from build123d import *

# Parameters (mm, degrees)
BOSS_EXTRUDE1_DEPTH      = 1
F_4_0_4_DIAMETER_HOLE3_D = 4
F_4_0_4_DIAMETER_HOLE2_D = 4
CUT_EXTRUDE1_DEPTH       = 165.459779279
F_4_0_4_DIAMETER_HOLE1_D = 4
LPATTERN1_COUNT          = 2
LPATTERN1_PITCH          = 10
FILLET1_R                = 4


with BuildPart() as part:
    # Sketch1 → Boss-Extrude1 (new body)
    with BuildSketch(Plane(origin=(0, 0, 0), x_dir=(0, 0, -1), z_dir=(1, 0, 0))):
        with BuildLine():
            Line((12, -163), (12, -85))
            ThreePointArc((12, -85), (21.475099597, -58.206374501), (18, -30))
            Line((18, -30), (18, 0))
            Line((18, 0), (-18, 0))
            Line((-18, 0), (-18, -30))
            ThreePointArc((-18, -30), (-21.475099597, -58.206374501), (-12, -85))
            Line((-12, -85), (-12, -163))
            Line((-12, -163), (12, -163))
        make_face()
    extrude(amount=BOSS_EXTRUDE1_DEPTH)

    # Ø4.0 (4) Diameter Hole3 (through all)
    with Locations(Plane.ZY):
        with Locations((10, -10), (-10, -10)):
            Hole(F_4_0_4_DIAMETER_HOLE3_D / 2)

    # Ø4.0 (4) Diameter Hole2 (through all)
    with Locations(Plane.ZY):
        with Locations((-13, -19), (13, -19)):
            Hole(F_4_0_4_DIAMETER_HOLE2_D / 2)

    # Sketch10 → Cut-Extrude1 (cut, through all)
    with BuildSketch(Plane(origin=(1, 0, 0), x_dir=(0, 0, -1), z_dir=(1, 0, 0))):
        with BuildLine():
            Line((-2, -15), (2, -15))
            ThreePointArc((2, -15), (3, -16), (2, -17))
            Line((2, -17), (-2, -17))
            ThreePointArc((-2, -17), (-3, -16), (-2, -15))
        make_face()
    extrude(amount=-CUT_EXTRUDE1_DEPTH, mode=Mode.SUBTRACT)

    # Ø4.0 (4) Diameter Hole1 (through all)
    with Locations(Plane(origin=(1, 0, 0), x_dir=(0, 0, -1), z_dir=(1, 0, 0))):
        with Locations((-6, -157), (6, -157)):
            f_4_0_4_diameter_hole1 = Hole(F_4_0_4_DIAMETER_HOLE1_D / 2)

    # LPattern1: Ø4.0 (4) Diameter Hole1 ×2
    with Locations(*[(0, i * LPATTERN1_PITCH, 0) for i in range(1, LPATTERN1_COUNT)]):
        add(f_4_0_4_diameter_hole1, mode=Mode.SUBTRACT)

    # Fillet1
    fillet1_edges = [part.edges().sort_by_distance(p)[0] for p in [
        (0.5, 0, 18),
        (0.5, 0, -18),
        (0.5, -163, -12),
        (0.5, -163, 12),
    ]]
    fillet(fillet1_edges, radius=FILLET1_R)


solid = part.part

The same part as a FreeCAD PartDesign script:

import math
import FreeCAD as App
import Part
import Sketcher

V = App.Vector


def edges_at(feature, points):
    """Names of the edges that pass closest to the given points."""
    edges = feature.Shape.Edges
    near = lambda p: min(range(len(edges)), key=lambda i: edges[i].distToShape(Part.Vertex(*p))[0])
    return sorted({f"Edge{near(p) + 1}" for p in points})

doc = App.newDocument("Part")
params = doc.addObject("Spreadsheet::Sheet", "Params")
for row, (alias, value) in enumerate([
    ("sketch1_radius", "62 mm"),
    ("sketch1_width", "78 mm"),
    ("sketch1_width2", "30 mm"),
    ("sketch1_height", "36 mm"),
    ("sketch1_height2", "24 mm"),
    ("pad1_length", "1 mm"),
    ("sketch2_diameter", "4 mm"),
    ("hole_diameter", "4 mm"),
    ("sketch3_diameter", "4 mm"),
    ("hole2_diameter", "4 mm"),
    ("sketch4_radius", "1 mm"),
    ("sketch4_height", "4 mm"),
    ("sketch5_diameter", "4 mm"),
    ("hole3_diameter", "4 mm"),
    ("linearpattern_pitch", "10 mm"),
    ("fillet_radius", "4 mm"),
], start=1):
    params.set(f"A{row}", alias)
    params.set(f"B{row}", "=" + value)
    params.setAlias(f"B{row}", alias)

body = doc.addObject("PartDesign::Body", "Body")

# Sketch on YZ plane
sketch1 = body.newObject("Sketcher::SketchObject", "Sketch")
sketch1.AttachmentSupport = (doc.getObject("YZ_Plane"), [""])
sketch1.MapMode = "FlatFace"
sketch1.addGeometry(Part.LineSegment(V(-163, -12, 0), V(-85, -12, 0)), False)
sketch1.addGeometry(Part.ArcOfCircle(Part.Circle(V(-51.482629, 40.159235, 0), V(0, 0, 1), 62), math.radians(-122.724681), math.radians(-69.726977)), False)
sketch1.addGeometry(Part.LineSegment(V(-30, -18, 0), V(0, -18, 0)), False)
sketch1.addGeometry(Part.LineSegment(V(0, -18, 0), V(0, 18, 0)), False)
sketch1.addGeometry(Part.LineSegment(V(0, 18, 0), V(-30, 18, 0)), False)
sketch1.addGeometry(Part.ArcOfCircle(Part.Circle(V(-51.482629, -40.159235, 0), V(0, 0, 1), 62), math.radians(69.726977), math.radians(122.724681)), False)
sketch1.addGeometry(Part.LineSegment(V(-85, 12, 0), V(-163, 12, 0)), False)
sketch1.addGeometry(Part.LineSegment(V(-163, 12, 0), V(-163, -12, 0)), False)
sketch1.addConstraint(Sketcher.Constraint("Coincident", 0, 2, 1, 1))
sketch1.addConstraint(Sketcher.Constraint("Coincident", 1, 2, 2, 1))
sketch1.addConstraint(Sketcher.Constraint("Coincident", 2, 2, 3, 1))
sketch1.addConstraint(Sketcher.Constraint("Coincident", 3, 2, 4, 1))
sketch1.addConstraint(Sketcher.Constraint("Coincident", 4, 2, 5, 1))
sketch1.addConstraint(Sketcher.Constraint("Coincident", 5, 2, 6, 1))
sketch1.addConstraint(Sketcher.Constraint("Coincident", 6, 2, 7, 1))
sketch1.addConstraint(Sketcher.Constraint("Coincident", 7, 2, 0, 1))
sketch1.addConstraint(Sketcher.Constraint("Horizontal", 0))
sketch1.addConstraint(Sketcher.Constraint("Horizontal", 2))
sketch1.addConstraint(Sketcher.Constraint("Vertical", 3))
sketch1.addConstraint(Sketcher.Constraint("Horizontal", 4))
sketch1.addConstraint(Sketcher.Constraint("Horizontal", 6))
sketch1.addConstraint(Sketcher.Constraint("Vertical", 7))
sketch1.addConstraint(Sketcher.Constraint("Equal", 1, 5))
sketch1.addConstraint(Sketcher.Constraint("Symmetric", 2, 2, 3, 2, -1, 1))
sketch1.addConstraint(Sketcher.Constraint("Symmetric", 1, 3, 5, 3, -1))
sketch1.addConstraint(Sketcher.Constraint("Vertical", 0, 2, 5, 2))
sketch1.addConstraint(Sketcher.Constraint("Radius", 1, 62.0))
sketch1.addConstraint(Sketcher.Constraint("DistanceX", 0, 1, 0, 2, 78.0))
sketch1.addConstraint(Sketcher.Constraint("DistanceX", 2, 1, 2, 2, 30.0))
sketch1.addConstraint(Sketcher.Constraint("DistanceY", 3, 1, 3, 2, 36.0))
sketch1.addConstraint(Sketcher.Constraint("DistanceY", 7, 2, 7, 1, 24.0))
sketch1.addConstraint(Sketcher.Constraint("DistanceX", 0, 2, -1, 1, 85.0))
sketch1.setExpression("Constraints[18]", "Params.sketch1_radius")
sketch1.setExpression("Constraints[19]", "Params.sketch1_width")
sketch1.setExpression("Constraints[20]", "Params.sketch1_width2")
sketch1.setExpression("Constraints[21]", "Params.sketch1_height")
sketch1.setExpression("Constraints[22]", "Params.sketch1_height2")
pad1 = body.newObject("PartDesign::Pad", "Pad")
pad1.Profile = sketch1
pad1.setExpression("Length", "Params.pad1_length")

# Sketch on YZ plane
sketch2 = body.newObject("Sketcher::SketchObject", "Sketch001")
sketch2.AttachmentSupport = (doc.getObject("YZ_Plane"), [""])
sketch2.MapMode = "FlatFace"
sketch2.addGeometry(Part.Circle(V(-10, 10, 0), V(0, 0, 1), 2), False)
sketch2.addGeometry(Part.Circle(V(-10, -10, 0), V(0, 0, 1), 2), False)
sketch2.addConstraint(Sketcher.Constraint("Equal", 0, 1))
sketch2.addConstraint(Sketcher.Constraint("Symmetric", 0, 3, 1, 3, -1))
sketch2.addConstraint(Sketcher.Constraint("Diameter", 0, 4.0))
sketch2.addConstraint(Sketcher.Constraint("DistanceX", 0, 3, -1, 1, 10.0))
sketch2.addConstraint(Sketcher.Constraint("DistanceY", -1, 1, 0, 3, 10.0))
sketch2.setExpression("Constraints[2]", "Params.sketch2_diameter")
doc.recompute()
hole = body.newObject("PartDesign::Hole", "Hole")
hole.Profile = sketch2
hole.ThreadType = "None"
hole.setExpression("Diameter", "Params.hole_diameter")
hole.DepthType = "ThroughAll"
hole.Reversed = True

# Sketch on YZ plane
sketch3 = body.newObject("Sketcher::SketchObject", "Sketch002")
sketch3.AttachmentSupport = (doc.getObject("YZ_Plane"), [""])
sketch3.MapMode = "FlatFace"
sketch3.addGeometry(Part.Circle(V(-19, -13, 0), V(0, 0, 1), 2), False)
sketch3.addGeometry(Part.Circle(V(-19, 13, 0), V(0, 0, 1), 2), False)
sketch3.addConstraint(Sketcher.Constraint("Equal", 0, 1))
sketch3.addConstraint(Sketcher.Constraint("Symmetric", 0, 3, 1, 3, -1))
sketch3.addConstraint(Sketcher.Constraint("Diameter", 0, 4.0))
sketch3.addConstraint(Sketcher.Constraint("DistanceX", 0, 3, -1, 1, 19.0))
sketch3.addConstraint(Sketcher.Constraint("DistanceY", 0, 3, -1, 1, 13.0))
sketch3.setExpression("Constraints[2]", "Params.sketch3_diameter")
doc.recompute()
hole2 = body.newObject("PartDesign::Hole", "Hole001")
hole2.Profile = sketch3
hole2.ThreadType = "None"
hole2.setExpression("Diameter", "Params.hole2_diameter")
hole2.DepthType = "ThroughAll"
hole2.Reversed = True

# Sketch on YZ plane
sketch4 = body.newObject("Sketcher::SketchObject", "Sketch003")
sketch4.AttachmentSupport = (doc.getObject("YZ_Plane"), [""])
sketch4.MapMode = "FlatFace"
sketch4.AttachmentOffset = App.Placement(V(0, 0, 1), App.Rotation())
sketch4.addGeometry(Part.LineSegment(V(-15, -2, 0), V(-15, 2, 0)), False)
sketch4.addGeometry(Part.ArcOfCircle(Part.Circle(V(-16, 2, 0), V(0, 0, 1), 1), math.radians(0), math.radians(180)), False)
sketch4.addGeometry(Part.LineSegment(V(-17, 2, 0), V(-17, -2, 0)), False)
sketch4.addGeometry(Part.ArcOfCircle(Part.Circle(V(-16, -2, 0), V(0, 0, 1), 1), math.radians(180), math.radians(360)), False)
sketch4.addConstraint(Sketcher.Constraint("Tangent", 0, 2, 1, 1))
sketch4.addConstraint(Sketcher.Constraint("Tangent", 1, 2, 2, 1))
sketch4.addConstraint(Sketcher.Constraint("Tangent", 2, 2, 3, 1))
sketch4.addConstraint(Sketcher.Constraint("Tangent", 3, 2, 0, 1))
sketch4.addConstraint(Sketcher.Constraint("Vertical", 0))
sketch4.addConstraint(Sketcher.Constraint("Vertical", 2))
sketch4.addConstraint(Sketcher.Constraint("Radius", 1, 1.0))
sketch4.addConstraint(Sketcher.Constraint("DistanceY", 0, 1, 0, 2, 4.0))
sketch4.addConstraint(Sketcher.Constraint("DistanceX", 1, 3, -1, 1, 16.0))
sketch4.addConstraint(Sketcher.Constraint("DistanceY", -1, 1, 1, 3, 2.0))
sketch4.setExpression("Constraints[6]", "Params.sketch4_radius")
sketch4.setExpression("Constraints[7]", "Params.sketch4_height")
pocket1 = body.newObject("PartDesign::Pocket", "Pocket")
pocket1.Profile = sketch4
pocket1.Type = "ThroughAll"

# Sketch on YZ plane
sketch5 = body.newObject("Sketcher::SketchObject", "Sketch004")
sketch5.AttachmentSupport = (doc.getObject("YZ_Plane"), [""])
sketch5.MapMode = "FlatFace"
sketch5.AttachmentOffset = App.Placement(V(0, 0, 1), App.Rotation())
sketch5.addGeometry(Part.Circle(V(-157, 6, 0), V(0, 0, 1), 2), False)
sketch5.addGeometry(Part.Circle(V(-157, -6, 0), V(0, 0, 1), 2), False)
sketch5.addConstraint(Sketcher.Constraint("Equal", 0, 1))
sketch5.addConstraint(Sketcher.Constraint("Symmetric", 0, 3, 1, 3, -1))
sketch5.addConstraint(Sketcher.Constraint("Diameter", 0, 4.0))
sketch5.addConstraint(Sketcher.Constraint("DistanceX", 0, 3, -1, 1, 157.0))
sketch5.addConstraint(Sketcher.Constraint("DistanceY", -1, 1, 0, 3, 6.0))
sketch5.setExpression("Constraints[2]", "Params.sketch5_diameter")
doc.recompute()
hole3 = body.newObject("PartDesign::Hole", "Hole002")
hole3.Profile = sketch5
hole3.ThreadType = "None"
hole3.setExpression("Diameter", "Params.hole3_diameter")
hole3.DepthType = "ThroughAll"
doc.recompute()

linearpattern = body.newObject("PartDesign::LinearPattern", "LinearPattern")
linearpattern.Originals = [hole3]
linearpattern.Direction = (doc.getObject("Y_Axis"), [""])
linearpattern.Mode = "offset"
linearpattern.setExpression("Offset", "Params.linearpattern_pitch")
linearpattern.Occurrences = 2
body.Tip = linearpattern
doc.recompute()

fillet = body.newObject("PartDesign::Fillet", "Fillet")
fillet.Base = (linearpattern, edges_at(linearpattern, [
    (0.5, 0, 18),
    (0.5, 0, -18),
    (0.5, -163, -12),
    (0.5, -163, 12),
]))
fillet.setExpression("Radius", "Params.fillet_radius")

doc.recompute()
